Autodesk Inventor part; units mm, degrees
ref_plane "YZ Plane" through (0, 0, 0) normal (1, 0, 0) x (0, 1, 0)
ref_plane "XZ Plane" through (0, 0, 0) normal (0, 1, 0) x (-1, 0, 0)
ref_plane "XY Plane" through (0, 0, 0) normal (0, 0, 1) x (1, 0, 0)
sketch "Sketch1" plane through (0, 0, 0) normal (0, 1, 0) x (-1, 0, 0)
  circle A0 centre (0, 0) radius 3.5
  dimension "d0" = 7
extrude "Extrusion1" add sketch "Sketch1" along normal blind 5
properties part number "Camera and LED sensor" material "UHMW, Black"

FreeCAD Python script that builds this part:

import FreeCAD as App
import Part
import Sketcher
Q = App.Units.Quantity

doc = App.newDocument("Part")
body = doc.addObject("PartDesign::Body", "Body")

# Sketch on XZ plane
sketch1 = body.newObject("Sketcher::SketchObject", "Sketch")
sketch1.AttachmentSupport = (doc.getObject("XZ_Plane"), [""])
sketch1.MapMode = "FlatFace"
sketch1.addGeometry(Part.Circle(App.Vector(0, 0, 0), App.Vector(0, 0, 1), 3.5), False)
sketch1.addConstraint([
    Sketcher.Constraint("Coincident", 0, 3, -1, 1),
    Sketcher.Constraint("Diameter", 0, Q("7 mm")),
])
pad1 = body.newObject("PartDesign::Pad", "Pad")
pad1.Profile = sketch1
pad1.Length = 5
pad1.Reversed = True

doc.recompute()
